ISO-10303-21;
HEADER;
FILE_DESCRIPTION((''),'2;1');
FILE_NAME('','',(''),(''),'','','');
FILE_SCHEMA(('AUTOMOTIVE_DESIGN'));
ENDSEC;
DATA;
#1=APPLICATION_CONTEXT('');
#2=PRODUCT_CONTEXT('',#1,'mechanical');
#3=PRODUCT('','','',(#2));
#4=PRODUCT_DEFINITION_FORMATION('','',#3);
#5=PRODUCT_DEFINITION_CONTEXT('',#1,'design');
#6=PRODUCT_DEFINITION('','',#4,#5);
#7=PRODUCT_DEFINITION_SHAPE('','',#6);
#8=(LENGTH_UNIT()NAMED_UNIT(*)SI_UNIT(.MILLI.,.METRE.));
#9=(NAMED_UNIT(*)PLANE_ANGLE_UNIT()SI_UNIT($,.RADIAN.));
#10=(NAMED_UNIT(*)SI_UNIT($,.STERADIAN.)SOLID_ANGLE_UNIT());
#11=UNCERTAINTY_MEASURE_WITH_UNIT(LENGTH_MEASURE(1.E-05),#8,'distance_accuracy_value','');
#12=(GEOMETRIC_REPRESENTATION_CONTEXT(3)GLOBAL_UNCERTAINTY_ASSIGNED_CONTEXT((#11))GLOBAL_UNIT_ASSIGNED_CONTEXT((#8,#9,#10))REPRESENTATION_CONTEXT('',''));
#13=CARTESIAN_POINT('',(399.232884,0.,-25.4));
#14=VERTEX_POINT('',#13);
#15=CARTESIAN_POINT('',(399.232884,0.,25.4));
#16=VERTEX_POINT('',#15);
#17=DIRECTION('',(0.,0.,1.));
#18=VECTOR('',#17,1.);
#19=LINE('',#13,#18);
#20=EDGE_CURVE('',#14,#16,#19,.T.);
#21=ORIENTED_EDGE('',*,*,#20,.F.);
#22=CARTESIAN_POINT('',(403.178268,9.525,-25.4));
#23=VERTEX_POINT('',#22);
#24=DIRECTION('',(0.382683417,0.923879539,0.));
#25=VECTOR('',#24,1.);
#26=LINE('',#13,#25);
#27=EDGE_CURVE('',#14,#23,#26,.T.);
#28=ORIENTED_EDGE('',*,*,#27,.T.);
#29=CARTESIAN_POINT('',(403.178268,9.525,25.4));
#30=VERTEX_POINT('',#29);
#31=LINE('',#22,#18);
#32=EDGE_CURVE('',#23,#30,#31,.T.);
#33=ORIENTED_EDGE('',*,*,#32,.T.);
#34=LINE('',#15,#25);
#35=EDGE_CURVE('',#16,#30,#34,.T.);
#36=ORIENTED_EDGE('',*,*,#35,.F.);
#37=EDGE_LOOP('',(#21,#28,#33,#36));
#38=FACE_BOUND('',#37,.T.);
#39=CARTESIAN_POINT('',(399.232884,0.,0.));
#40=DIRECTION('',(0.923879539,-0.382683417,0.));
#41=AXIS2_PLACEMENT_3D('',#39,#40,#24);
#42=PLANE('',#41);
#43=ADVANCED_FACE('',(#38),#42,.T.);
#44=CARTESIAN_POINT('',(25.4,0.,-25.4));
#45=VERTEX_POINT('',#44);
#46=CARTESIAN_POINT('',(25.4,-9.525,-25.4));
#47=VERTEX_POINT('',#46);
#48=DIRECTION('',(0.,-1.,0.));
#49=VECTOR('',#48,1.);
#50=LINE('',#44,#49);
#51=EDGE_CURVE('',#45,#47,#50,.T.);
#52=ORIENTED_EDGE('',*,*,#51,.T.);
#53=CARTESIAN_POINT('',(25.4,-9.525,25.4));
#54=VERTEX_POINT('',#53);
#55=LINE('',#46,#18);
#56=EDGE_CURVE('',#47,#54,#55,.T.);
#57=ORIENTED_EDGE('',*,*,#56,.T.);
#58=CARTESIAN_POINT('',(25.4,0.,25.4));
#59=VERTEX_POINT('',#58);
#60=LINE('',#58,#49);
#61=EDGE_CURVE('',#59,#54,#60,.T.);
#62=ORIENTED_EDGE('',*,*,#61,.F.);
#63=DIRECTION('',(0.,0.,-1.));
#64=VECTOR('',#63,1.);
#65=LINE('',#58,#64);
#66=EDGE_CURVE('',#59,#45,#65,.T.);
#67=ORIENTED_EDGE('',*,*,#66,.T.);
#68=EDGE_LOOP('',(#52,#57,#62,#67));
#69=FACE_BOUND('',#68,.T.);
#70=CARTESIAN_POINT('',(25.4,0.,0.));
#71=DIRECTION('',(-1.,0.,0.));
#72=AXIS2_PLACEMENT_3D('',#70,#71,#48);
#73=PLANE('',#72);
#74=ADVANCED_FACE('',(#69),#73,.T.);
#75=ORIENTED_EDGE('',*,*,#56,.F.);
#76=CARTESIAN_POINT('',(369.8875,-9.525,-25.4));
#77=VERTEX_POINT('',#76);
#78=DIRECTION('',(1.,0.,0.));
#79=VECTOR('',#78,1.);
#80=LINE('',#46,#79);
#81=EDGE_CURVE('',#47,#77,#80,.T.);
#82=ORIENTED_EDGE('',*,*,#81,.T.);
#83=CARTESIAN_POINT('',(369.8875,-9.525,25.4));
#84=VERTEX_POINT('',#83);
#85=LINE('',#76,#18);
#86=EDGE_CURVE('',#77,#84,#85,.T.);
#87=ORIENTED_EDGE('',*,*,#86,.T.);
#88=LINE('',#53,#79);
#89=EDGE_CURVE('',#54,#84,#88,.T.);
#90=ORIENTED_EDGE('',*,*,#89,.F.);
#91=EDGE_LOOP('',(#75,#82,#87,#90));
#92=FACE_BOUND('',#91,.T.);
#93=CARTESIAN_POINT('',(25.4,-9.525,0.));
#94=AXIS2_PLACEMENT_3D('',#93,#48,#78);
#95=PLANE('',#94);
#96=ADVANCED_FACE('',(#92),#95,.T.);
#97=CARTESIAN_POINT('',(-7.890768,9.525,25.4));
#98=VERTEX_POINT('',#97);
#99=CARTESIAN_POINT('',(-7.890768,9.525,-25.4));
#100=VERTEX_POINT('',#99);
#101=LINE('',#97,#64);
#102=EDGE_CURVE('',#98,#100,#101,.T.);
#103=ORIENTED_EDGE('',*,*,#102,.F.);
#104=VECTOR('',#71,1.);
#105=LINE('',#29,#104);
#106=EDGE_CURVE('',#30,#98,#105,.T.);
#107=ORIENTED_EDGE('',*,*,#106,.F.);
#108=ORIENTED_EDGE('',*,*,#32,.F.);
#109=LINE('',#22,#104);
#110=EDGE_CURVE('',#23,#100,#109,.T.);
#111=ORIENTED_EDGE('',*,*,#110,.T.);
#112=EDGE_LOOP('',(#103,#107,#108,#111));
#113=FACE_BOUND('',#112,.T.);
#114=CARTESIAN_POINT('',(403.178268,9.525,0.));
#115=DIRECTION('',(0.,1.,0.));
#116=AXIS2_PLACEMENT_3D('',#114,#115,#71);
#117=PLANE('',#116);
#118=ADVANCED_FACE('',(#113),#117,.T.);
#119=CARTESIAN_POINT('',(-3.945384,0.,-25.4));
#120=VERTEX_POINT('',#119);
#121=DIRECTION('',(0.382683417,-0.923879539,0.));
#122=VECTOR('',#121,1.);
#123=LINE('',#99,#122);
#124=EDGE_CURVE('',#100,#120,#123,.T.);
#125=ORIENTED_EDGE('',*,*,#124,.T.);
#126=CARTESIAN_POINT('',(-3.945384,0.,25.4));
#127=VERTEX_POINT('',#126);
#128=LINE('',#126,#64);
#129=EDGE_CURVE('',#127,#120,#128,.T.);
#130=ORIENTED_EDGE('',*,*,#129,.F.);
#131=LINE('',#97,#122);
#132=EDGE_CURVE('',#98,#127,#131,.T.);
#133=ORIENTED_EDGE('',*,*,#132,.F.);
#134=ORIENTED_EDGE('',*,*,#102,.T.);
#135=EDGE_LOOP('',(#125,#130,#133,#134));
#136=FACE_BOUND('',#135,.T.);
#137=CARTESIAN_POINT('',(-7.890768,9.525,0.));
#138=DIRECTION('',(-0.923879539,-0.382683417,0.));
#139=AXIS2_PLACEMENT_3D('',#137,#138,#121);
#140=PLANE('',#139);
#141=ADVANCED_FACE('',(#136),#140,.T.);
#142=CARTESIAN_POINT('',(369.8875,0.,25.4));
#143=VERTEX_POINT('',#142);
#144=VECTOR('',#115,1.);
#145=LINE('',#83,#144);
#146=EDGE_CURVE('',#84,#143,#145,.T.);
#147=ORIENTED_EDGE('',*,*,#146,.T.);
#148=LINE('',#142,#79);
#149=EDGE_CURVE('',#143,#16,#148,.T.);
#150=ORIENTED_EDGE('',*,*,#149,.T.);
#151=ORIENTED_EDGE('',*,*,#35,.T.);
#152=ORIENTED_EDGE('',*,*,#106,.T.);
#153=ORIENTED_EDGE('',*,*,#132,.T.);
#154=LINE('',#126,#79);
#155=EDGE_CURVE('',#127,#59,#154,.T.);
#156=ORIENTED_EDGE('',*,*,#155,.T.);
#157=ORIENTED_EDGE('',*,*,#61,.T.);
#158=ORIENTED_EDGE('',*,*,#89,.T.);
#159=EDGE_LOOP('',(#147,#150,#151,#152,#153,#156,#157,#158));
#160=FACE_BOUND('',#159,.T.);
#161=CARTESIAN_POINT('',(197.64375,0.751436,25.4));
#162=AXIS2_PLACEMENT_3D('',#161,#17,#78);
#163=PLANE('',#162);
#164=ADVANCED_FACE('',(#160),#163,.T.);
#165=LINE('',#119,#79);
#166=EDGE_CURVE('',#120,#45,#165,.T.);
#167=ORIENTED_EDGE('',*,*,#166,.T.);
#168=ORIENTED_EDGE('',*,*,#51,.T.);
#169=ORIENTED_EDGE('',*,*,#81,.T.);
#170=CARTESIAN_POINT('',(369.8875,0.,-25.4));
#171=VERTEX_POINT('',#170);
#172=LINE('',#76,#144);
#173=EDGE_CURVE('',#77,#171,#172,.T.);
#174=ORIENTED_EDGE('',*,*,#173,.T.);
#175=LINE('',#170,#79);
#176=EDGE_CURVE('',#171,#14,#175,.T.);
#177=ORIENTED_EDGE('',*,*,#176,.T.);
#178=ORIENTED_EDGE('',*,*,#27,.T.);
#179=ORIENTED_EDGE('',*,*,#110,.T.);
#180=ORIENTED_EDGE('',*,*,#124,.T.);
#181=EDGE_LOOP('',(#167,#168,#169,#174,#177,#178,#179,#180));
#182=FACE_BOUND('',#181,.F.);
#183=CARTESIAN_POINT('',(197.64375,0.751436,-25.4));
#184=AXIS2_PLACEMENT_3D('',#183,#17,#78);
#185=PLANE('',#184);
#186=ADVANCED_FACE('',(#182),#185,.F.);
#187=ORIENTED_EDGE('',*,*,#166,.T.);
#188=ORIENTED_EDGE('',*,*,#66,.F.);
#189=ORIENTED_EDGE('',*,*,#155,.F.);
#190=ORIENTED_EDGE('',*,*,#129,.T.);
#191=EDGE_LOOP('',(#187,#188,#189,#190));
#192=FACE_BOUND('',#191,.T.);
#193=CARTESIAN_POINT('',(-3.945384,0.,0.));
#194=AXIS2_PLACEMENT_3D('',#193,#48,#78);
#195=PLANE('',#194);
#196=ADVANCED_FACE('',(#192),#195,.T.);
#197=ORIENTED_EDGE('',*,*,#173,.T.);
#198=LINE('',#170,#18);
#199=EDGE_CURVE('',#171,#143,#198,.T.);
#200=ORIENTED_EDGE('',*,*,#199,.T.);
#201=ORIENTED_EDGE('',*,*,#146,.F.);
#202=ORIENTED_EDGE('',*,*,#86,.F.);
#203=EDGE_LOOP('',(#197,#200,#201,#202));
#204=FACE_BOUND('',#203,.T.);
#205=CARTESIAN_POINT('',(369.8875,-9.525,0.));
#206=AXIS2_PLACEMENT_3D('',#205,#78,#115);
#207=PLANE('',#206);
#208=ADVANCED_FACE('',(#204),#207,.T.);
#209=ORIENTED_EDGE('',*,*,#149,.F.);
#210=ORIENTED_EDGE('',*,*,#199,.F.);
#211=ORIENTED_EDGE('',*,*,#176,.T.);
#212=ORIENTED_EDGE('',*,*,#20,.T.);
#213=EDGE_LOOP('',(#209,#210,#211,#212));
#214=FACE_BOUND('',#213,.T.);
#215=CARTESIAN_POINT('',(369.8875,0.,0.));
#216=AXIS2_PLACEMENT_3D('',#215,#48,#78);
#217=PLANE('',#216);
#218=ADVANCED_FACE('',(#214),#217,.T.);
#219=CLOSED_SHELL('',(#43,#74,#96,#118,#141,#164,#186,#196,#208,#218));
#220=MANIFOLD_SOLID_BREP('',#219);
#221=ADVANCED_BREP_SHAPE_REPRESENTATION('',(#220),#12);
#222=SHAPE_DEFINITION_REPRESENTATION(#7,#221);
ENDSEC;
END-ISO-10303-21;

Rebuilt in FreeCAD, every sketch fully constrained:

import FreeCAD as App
import Part
import Sketcher
Q = App.Units.Quantity

doc = App.newDocument("Part")
body = doc.addObject("PartDesign::Body", "Body")

sketch1 = body.newObject("Sketcher::SketchObject", "Sketch")
sketch1.AttachmentSupport = (doc.getObject("XY_Plane"), [""])
sketch1.MapMode = "FlatFace"
sketch1.addGeometry([
    Part.LineSegment(App.Vector(25.4, 0, 0), App.Vector(25.4, -9.525, 0)),
    Part.LineSegment(App.Vector(25.4, -9.525, 0), App.Vector(369.8875, -9.525, 0)),
    Part.LineSegment(App.Vector(369.8875, -9.525, 0), App.Vector(369.8875, 0, 0)),
    Part.LineSegment(App.Vector(369.8875, 0, 0), App.Vector(399.232884, 0, 0)),
    Part.LineSegment(App.Vector(399.232884, 0, 0), App.Vector(403.178268, 9.525, 0)),
    Part.LineSegment(App.Vector(403.178268, 9.525, 0), App.Vector(-7.890768, 9.525, 0)),
    Part.LineSegment(App.Vector(-7.890768, 9.525, 0), App.Vector(-3.945384, 0, 0)),
    Part.LineSegment(App.Vector(-3.945384, 0, 0), App.Vector(25.4, 0, 0)),
], False)
sketch1.addConstraint([
    Sketcher.Constraint("Coincident", 0, 2, 1, 1),
    Sketcher.Constraint("Coincident", 1, 2, 2, 1),
    Sketcher.Constraint("Coincident", 2, 2, 3, 1),
    Sketcher.Constraint("Coincident", 3, 2, 4, 1),
    Sketcher.Constraint("Coincident", 4, 2, 5, 1),
    Sketcher.Constraint("Coincident", 5, 2, 6, 1),
    Sketcher.Constraint("Coincident", 6, 2, 7, 1),
    Sketcher.Constraint("Coincident", 7, 2, 0, 1),
    Sketcher.Constraint("Vertical", 0),
    Sketcher.Constraint("Horizontal", 1),
    Sketcher.Constraint("Vertical", 2),
    Sketcher.Constraint("Horizontal", 3),
    Sketcher.Constraint("Horizontal", 5),
    Sketcher.Constraint("Horizontal", 7),
    Sketcher.Constraint("PointOnObject", 2, 2, -1),
    Sketcher.Constraint("PointOnObject", 6, 2, -1),
    Sketcher.Constraint("Equal", 3, 7),
    Sketcher.Constraint("Equal", 4, 6),
    Sketcher.Constraint("DistanceX", -1, 1, 0, 2, Q("1 in")),
    Sketcher.Constraint("Angle", 4, Q("67.500001 deg")),
    Sketcher.Constraint("DistanceX", 1, 1, 1, 2, Q("13.5625 in")),
    Sketcher.Constraint("DistanceY", 0, 2, 0, 1, Q("0.375 in")),
    Sketcher.Constraint("DistanceY", 1, 2, 4, 2, Q("0.75 in")),
    Sketcher.Constraint("DistanceX", 3, 1, 3, 2, 29.345384),
])
pad1 = body.newObject("PartDesign::Pad", "Pad")
pad1.Profile = sketch1
pad1.Length = Q("2 in")
pad1.Midplane = True

doc.recompute()
